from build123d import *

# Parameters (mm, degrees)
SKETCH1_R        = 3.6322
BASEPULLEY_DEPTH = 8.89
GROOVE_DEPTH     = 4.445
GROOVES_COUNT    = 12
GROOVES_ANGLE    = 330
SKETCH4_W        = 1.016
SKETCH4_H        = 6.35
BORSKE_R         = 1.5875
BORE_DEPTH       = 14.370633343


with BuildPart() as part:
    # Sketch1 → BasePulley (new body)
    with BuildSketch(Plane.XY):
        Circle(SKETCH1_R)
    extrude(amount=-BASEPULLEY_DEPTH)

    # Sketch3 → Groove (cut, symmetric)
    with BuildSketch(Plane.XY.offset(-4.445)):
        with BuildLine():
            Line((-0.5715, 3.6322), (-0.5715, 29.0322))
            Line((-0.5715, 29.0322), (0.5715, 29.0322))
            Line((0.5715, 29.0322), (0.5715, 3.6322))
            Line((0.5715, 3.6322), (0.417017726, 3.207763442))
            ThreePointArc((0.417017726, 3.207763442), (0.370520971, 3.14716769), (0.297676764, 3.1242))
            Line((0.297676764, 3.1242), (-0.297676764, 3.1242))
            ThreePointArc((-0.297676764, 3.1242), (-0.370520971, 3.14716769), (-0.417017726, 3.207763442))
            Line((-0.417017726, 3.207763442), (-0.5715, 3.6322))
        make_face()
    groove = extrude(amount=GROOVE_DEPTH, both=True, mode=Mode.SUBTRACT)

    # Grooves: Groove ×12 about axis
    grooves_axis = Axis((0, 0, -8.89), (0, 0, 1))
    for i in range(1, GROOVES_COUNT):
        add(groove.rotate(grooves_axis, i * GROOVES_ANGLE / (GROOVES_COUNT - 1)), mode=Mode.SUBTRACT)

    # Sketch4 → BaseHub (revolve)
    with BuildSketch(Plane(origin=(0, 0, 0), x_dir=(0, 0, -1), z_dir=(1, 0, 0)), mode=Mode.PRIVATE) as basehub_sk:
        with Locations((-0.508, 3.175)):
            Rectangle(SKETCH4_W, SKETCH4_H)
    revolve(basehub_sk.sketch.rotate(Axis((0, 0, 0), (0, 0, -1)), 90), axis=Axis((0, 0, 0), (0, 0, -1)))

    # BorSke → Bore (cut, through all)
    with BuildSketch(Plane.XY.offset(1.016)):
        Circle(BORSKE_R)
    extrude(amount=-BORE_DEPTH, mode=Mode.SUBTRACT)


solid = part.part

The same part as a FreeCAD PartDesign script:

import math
import FreeCAD as App
import Part
import Sketcher
Q = App.Units.Quantity


def add_polygon(sketch, points):
    """Adds a closed chain of lines whose ends are joined by coincident constraints."""
    first, n = sketch.GeometryCount, len(points)
    for a, b in zip(points, points[1:] + points[:1]):
        sketch.addGeometry(Part.LineSegment(App.Vector(*a, 0), App.Vector(*b, 0)), False)
    for i in range(n):
        sketch.addConstraint(Sketcher.Constraint("Coincident", first + i, 2, first + (i + 1) % n, 1))

doc = App.newDocument("Part")
body = doc.addObject("PartDesign::Body", "Body")

# Sketch on XY plane
sketch1 = body.newObject("Sketcher::SketchObject", "Sketch")
sketch1.AttachmentSupport = (doc.getObject("XY_Plane"), [""])
sketch1.MapMode = "FlatFace"
sketch1.addGeometry(Part.Circle(App.Vector(0, 0, 0), App.Vector(0, 0, 1), 3.6), False)
sketch1.addConstraint([
    Sketcher.Constraint("Coincident", 0, 3, -1, 1),
    Sketcher.Constraint("Diameter", 0, Q("0.286 in")),
])
pad1 = body.newObject("PartDesign::Pad", "Pad")
pad1.Profile = sketch1
pad1.Length = Q("0.35 in")
pad1.Reversed = True

# Sketch on XY plane
sketch2 = body.newObject("Sketcher::SketchObject", "Sketch001")
sketch2.AttachmentSupport = (doc.getObject("XY_Plane"), [""])
sketch2.MapMode = "FlatFace"
sketch2.AttachmentOffset = App.Placement(App.Vector(0, 0, -0.175 * 25.4), App.Rotation())
sketch2.addGeometry([
    Part.LineSegment(App.Vector(-0.57, 29.03, 0), App.Vector(-0.57, 3.63, 0)),  # 0
    Part.LineSegment(App.Vector(-0.57, 3.63, 0), App.Vector(-0.42, 3.21, 0)),  # 1
    Part.ArcOfCircle(Part.Circle(App.Vector(-0.3, 3.25, 0), App.Vector(0, 0, 1), 0.13), math.radians(-160), math.radians(-90)),  # 2
    Part.LineSegment(App.Vector(-0.3, 3.12, 0), App.Vector(0.3, 3.12, 0)),  # 3
    Part.ArcOfCircle(Part.Circle(App.Vector(0.3, 3.25, 0), App.Vector(0, 0, 1), 0.13), math.radians(-90), math.radians(-20)),  # 4
    Part.LineSegment(App.Vector(0.42, 3.21, 0), App.Vector(0.57, 3.63, 0)),  # 5
    Part.LineSegment(App.Vector(0.57, 3.63, 0), App.Vector(0.57, 29.03, 0)),  # 6
    Part.LineSegment(App.Vector(0.57, 29.03, 0), App.Vector(-0.57, 29.03, 0)),  # 7
], False)
sketch2.addConstraint([
    Sketcher.Constraint("Coincident", 0, 2, 1, 1),
    Sketcher.Constraint("Tangent", 1, 2, 2, 1),
    Sketcher.Constraint("Tangent", 2, 2, 3, 1),
    Sketcher.Constraint("Tangent", 3, 2, 4, 1),
    Sketcher.Constraint("Tangent", 4, 2, 5, 1),
    Sketcher.Constraint("Coincident", 5, 2, 6, 1),
    Sketcher.Constraint("Coincident", 6, 2, 7, 1),
    Sketcher.Constraint("Coincident", 7, 2, 0, 1),
    Sketcher.Constraint("Vertical", 0),
    Sketcher.Constraint("Horizontal", 3),
    Sketcher.Constraint("Vertical", 6),
    Sketcher.Constraint("Horizontal", 7),
    Sketcher.Constraint("Equal", 2, 4),
    Sketcher.Constraint("Symmetric", 1, 2, 4, 2, -2),
    Sketcher.Constraint("Horizontal", 0, 2, 5, 2),
    Sketcher.Constraint("DistanceY", 0, 2, 0, 1, Q("1 in")),
    Sketcher.Constraint("Angle", 1, Q("-70 deg")),
    Sketcher.Constraint("Radius", 2, Q("0.005 in")),
    Sketcher.Constraint("DistanceX", 7, 2, 7, 1, Q("0.045 in")),
    Sketcher.Constraint("DistanceY", 2, 2, 0, 2, Q("0.02 in")),
    Sketcher.Constraint("DistanceY", -1, 1, 2, 3, Q("0.128 in")),
])
pocket1 = body.newObject("PartDesign::Pocket", "Pocket")
pocket1.Profile = sketch2
pocket1.Length = Q("0.35 in")
pocket1.Midplane = True
doc.recompute()

polarpattern = body.newObject("PartDesign::PolarPattern", "PolarPattern")
polarpattern.Originals = [pocket1]
polarpattern.Axis = (doc.getObject("Z_Axis"), [""])
polarpattern.Angle = 360
polarpattern.Occurrences = 12
body.Tip = polarpattern

# Sketch on YZ plane
sketch3 = body.newObject("Sketcher::SketchObject", "Sketch002")
sketch3.AttachmentSupport = (doc.getObject("YZ_Plane"), [""])
sketch3.MapMode = "FlatFace"
add_polygon(sketch3, [(6.3, 1), (0, 1), (0, 0), (6.3, 0)])  # lines 0-3
sketch3.addConstraint([
    Sketcher.Constraint("Horizontal", 0),
    Sketcher.Constraint("Vertical", 1),
    Sketcher.Constraint("Horizontal", 2),
    Sketcher.Constraint("Vertical", 3),
    Sketcher.Constraint("Coincident", 1, 2, -1, 1),
    Sketcher.Constraint("DistanceX", 0, 2, 0, 1, Q("0.25 in")),
    Sketcher.Constraint("DistanceY", 1, 2, 1, 1, Q("0.04 in")),
])
revolution = body.newObject("PartDesign::Revolution", "Revolution")
revolution.Profile = sketch3
revolution.ReferenceAxis = (sketch3, ["V_Axis"])
revolution.Angle = 360

# Sketch on XY plane
sketch4 = body.newObject("Sketcher::SketchObject", "Sketch003")
sketch4.AttachmentSupport = (doc.getObject("XY_Plane"), [""])
sketch4.MapMode = "FlatFace"
sketch4.AttachmentOffset = App.Placement(App.Vector(0, 0, 0.04 * 25.4), App.Rotation())
sketch4.addGeometry(Part.Circle(App.Vector(0, 0, 0), App.Vector(0, 0, 1), 1.6), False)
sketch4.addConstraint([
    Sketcher.Constraint("Coincident", 0, 3, -1, 1),
    Sketcher.Constraint("Diameter", 0, Q("0.125 in")),
])
pocket2 = body.newObject("PartDesign::Pocket", "Pocket001")
pocket2.Profile = sketch4
pocket2.Type = "ThroughAll"

doc.recompute()
